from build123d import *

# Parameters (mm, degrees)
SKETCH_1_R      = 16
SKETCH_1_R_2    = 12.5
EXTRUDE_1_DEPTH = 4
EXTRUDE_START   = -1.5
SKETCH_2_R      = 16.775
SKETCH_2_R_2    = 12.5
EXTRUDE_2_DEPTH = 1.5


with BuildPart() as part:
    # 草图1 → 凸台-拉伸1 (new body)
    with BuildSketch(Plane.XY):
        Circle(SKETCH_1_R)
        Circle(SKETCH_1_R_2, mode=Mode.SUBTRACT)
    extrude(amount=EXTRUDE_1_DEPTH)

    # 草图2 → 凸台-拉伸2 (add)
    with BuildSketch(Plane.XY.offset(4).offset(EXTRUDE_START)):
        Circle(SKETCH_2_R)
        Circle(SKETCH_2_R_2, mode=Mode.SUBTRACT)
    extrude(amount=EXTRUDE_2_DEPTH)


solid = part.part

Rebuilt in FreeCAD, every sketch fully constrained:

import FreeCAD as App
import Part
import Sketcher
Q = App.Units.Quantity

doc = App.newDocument("Part")
body = doc.addObject("PartDesign::Body", "Body")

# Sketch on XY plane
sketch1 = body.newObject("Sketcher::SketchObject", "Sketch")
sketch1.AttachmentSupport = (doc.getObject("XY_Plane"), [""])
sketch1.MapMode = "FlatFace"
sketch1.addGeometry([
    Part.Circle(App.Vector(0, 0, 0), App.Vector(0, 0, 1), 16),
    Part.Circle(App.Vector(0, 0, 0), App.Vector(0, 0, 1), 12),
], False)
sketch1.addConstraint([
    Sketcher.Constraint("Coincident", 0, 3, -1, 1),
    Sketcher.Constraint("Coincident", 1, 3, -1, 1),
    Sketcher.Constraint("Diameter", 0, Q("32 mm")),
    Sketcher.Constraint("Diameter", 1, Q("25 mm")),
])
pad1 = body.newObject("PartDesign::Pad", "Pad")
pad1.Profile = sketch1
pad1.Length = 4

# Sketch on XY plane
sketch2 = body.newObject("Sketcher::SketchObject", "Sketch001")
sketch2.AttachmentSupport = (doc.getObject("XY_Plane"), [""])
sketch2.MapMode = "FlatFace"
sketch2.AttachmentOffset = App.Placement(App.Vector(0, 0, 2.5), App.Rotation())
sketch2.addGeometry([
    Part.Circle(App.Vector(0, 0, 0), App.Vector(0, 0, 1), 17),
    Part.Circle(App.Vector(0, 0, 0), App.Vector(0, 0, 1), 12),
], False)
sketch2.addConstraint([
    Sketcher.Constraint("Coincident", 0, 3, -1, 1),
    Sketcher.Constraint("Coincident", 1, 3, -1, 1),
    Sketcher.Constraint("Diameter", 1, Q("25 mm")),
    Sketcher.Constraint("Diameter", 0, Q("33.55 mm")),
])
pad2 = body.newObject("PartDesign::Pad", "Pad001")
pad2.Profile = sketch2
pad2.Length = 1.5

doc.recompute()
